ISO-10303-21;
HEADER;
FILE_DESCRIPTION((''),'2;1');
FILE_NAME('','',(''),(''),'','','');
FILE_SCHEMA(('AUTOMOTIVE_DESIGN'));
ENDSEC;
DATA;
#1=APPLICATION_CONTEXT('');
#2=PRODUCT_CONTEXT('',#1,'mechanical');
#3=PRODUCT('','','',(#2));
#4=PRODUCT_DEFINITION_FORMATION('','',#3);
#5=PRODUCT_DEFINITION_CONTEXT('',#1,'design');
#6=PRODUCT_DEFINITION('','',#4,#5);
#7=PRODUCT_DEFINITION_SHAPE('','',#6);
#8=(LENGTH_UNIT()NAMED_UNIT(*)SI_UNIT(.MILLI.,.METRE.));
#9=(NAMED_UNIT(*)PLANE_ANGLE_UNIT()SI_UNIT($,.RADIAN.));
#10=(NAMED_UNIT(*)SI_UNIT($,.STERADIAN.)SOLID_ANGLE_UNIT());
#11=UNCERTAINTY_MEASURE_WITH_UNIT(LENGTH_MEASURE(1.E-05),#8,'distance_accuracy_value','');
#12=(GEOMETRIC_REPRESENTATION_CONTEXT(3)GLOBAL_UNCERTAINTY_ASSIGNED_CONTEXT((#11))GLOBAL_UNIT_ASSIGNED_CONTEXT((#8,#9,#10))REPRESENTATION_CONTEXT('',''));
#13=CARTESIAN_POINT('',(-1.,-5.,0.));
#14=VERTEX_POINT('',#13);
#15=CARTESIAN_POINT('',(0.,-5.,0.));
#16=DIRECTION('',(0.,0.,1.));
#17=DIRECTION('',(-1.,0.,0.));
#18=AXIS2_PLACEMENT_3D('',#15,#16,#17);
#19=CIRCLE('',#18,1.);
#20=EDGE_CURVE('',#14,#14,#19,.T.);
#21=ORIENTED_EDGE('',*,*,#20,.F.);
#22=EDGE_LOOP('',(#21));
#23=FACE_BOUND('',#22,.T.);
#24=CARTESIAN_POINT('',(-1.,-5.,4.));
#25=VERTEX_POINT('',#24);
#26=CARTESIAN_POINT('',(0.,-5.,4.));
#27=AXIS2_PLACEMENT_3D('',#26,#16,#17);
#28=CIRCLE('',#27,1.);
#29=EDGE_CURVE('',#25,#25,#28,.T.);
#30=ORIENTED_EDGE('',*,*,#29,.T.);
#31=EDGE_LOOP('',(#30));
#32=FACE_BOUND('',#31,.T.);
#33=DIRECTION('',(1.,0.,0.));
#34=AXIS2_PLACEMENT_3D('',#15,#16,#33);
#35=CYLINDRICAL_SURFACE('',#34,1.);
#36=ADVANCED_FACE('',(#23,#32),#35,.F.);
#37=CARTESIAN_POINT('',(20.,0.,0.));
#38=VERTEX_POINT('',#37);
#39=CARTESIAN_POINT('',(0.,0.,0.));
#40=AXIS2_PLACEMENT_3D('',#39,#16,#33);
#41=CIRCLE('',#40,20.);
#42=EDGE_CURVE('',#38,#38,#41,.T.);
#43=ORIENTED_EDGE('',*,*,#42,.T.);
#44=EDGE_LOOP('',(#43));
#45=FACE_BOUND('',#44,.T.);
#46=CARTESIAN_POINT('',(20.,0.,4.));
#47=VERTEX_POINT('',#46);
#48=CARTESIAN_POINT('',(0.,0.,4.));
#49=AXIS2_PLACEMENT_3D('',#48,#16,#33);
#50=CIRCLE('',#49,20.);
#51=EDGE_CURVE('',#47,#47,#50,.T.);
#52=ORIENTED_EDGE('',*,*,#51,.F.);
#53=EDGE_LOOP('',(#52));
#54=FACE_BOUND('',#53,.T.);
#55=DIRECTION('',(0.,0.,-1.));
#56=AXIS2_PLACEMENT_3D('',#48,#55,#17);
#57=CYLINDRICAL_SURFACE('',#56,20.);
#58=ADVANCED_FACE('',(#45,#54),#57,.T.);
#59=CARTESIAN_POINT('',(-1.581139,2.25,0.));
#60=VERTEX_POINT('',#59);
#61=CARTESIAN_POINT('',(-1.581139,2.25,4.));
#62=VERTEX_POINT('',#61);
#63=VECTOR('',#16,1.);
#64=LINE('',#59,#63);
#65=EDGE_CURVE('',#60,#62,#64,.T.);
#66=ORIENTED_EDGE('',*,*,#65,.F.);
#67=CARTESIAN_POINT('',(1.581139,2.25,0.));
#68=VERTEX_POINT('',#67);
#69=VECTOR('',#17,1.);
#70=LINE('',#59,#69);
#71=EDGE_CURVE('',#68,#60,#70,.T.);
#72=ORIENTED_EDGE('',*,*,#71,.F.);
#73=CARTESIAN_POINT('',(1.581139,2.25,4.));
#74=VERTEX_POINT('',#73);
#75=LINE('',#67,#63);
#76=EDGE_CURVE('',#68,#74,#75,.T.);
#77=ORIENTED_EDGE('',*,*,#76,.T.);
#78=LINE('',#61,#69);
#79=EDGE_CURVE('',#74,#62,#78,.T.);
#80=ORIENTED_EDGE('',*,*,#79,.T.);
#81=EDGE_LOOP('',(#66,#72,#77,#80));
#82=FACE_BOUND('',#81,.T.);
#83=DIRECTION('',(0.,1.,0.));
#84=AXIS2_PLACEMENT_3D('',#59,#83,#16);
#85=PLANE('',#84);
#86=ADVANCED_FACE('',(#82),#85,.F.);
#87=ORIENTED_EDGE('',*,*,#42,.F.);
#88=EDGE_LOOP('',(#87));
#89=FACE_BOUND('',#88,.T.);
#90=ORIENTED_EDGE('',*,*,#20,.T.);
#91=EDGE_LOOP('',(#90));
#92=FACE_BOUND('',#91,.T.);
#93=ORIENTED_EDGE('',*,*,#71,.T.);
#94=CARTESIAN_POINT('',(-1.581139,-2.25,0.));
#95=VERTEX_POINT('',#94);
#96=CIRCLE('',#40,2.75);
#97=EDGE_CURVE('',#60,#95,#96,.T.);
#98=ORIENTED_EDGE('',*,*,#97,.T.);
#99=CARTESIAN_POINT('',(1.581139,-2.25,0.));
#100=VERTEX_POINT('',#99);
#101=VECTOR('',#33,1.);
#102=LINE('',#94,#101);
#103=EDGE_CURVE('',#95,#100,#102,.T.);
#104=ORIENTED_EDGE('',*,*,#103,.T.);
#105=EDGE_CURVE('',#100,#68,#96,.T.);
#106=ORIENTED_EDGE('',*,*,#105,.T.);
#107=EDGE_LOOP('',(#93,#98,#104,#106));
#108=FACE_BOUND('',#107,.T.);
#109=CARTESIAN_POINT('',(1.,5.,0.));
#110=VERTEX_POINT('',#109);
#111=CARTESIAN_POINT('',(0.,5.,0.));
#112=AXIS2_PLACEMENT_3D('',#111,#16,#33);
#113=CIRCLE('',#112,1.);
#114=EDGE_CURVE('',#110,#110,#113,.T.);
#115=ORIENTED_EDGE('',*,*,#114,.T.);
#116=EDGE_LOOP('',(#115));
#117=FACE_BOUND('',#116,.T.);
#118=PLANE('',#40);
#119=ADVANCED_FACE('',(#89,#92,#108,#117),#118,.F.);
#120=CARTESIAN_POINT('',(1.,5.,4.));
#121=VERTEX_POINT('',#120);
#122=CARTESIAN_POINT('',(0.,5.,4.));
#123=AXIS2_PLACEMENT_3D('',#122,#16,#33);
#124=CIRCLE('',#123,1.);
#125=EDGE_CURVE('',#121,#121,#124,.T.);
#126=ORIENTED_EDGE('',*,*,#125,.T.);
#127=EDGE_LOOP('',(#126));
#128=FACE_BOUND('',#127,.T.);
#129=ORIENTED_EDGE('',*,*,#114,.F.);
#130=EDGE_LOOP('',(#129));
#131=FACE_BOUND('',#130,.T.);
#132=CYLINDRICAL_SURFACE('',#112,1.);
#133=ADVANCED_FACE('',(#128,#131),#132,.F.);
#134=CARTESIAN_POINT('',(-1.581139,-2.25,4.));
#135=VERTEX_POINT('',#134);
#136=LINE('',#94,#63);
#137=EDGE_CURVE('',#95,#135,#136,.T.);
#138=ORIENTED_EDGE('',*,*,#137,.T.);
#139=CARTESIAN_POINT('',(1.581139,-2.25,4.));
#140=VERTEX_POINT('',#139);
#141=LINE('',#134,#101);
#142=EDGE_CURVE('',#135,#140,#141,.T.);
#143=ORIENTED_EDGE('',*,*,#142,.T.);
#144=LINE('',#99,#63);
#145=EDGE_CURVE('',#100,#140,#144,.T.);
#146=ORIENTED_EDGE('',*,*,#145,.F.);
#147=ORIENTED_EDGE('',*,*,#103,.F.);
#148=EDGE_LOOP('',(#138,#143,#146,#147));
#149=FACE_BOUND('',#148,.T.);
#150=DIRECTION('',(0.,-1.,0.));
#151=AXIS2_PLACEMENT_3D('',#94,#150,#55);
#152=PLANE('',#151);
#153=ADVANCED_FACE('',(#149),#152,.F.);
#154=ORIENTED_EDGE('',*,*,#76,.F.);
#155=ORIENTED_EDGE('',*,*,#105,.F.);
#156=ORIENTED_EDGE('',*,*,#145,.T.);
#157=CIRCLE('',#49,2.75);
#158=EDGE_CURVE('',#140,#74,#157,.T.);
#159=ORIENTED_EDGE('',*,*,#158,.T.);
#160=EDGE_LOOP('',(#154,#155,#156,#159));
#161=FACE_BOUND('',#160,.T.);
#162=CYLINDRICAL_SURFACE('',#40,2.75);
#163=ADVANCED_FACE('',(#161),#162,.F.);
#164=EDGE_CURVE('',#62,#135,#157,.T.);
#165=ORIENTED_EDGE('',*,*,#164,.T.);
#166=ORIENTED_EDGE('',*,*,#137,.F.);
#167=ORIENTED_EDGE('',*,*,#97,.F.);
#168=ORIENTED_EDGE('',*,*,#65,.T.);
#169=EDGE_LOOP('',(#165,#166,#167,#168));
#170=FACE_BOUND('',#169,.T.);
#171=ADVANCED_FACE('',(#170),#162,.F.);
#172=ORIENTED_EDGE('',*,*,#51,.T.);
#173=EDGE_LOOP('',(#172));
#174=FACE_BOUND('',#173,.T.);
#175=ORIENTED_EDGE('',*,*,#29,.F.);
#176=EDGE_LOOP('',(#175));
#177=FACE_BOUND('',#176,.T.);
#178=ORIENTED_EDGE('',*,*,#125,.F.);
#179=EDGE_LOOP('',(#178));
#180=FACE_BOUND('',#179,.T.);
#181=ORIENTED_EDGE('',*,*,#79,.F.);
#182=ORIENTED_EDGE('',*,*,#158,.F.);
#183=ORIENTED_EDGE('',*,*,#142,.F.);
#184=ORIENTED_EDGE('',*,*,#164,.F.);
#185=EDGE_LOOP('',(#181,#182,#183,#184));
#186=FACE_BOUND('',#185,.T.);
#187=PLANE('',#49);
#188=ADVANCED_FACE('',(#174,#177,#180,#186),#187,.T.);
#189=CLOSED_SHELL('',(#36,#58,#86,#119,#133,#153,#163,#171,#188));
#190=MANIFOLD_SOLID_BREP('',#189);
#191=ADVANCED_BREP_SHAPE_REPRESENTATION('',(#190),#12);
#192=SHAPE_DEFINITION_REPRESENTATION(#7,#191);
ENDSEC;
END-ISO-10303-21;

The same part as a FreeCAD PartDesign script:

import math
import FreeCAD as App
import Part
import Sketcher
from FreeCAD import Vector

doc = App.newDocument("Part")
body = doc.addObject("PartDesign::Body", "Body")

# Sketch on XY plane
sketch1 = doc.addObject("Sketcher::SketchObject", "Sketch")
body.addObject(sketch1)
sketch1.AttachmentSupport = (doc.XY_Plane, [""])
sketch1.MapMode = "FlatFace"
sketch1.addGeometry(Part.Circle(Vector(0, 0, 0), Vector(0, 0, 1), 20), False)
sketch1.addConstraint(Sketcher.Constraint("Coincident", 0, 3, -1, 1))
sketch1.addConstraint(Sketcher.Constraint("Diameter", 0, 40.0))
pad1 = doc.addObject("PartDesign::Pad", "Pad")
body.addObject(pad1)
pad1.Profile = sketch1
pad1.Length = 4

# Sketch on XY plane
sketch2 = doc.addObject("Sketcher::SketchObject", "Sketch001")
body.addObject(sketch2)
sketch2.AttachmentSupport = (doc.XY_Plane, [""])
sketch2.MapMode = "FlatFace"
sketch2.AttachmentOffset = App.Placement(Vector(0, 0, 4), App.Rotation())
sketch2.addGeometry(Part.Circle(Vector(0, 5, 0), Vector(0, 0, 1), 1), False)
sketch2.addGeometry(Part.Circle(Vector(0, -5, 0), Vector(0, 0, 1), 1), False)
sketch2.addGeometry(Part.LineSegment(Vector(1.6, 2.2, 0), Vector(-1.6, 2.2, 0)), False)
sketch2.addGeometry(Part.ArcOfCircle(Part.Circle(Vector(0, 0, 0), Vector(0, 0, 1), 2.8), math.radians(125), math.radians(235)), False)
sketch2.addGeometry(Part.LineSegment(Vector(-1.6, -2.2, 0), Vector(1.6, -2.2, 0)), False)
sketch2.addGeometry(Part.ArcOfCircle(Part.Circle(Vector(0, 0, 0), Vector(0, 0, 1), 2.8), math.radians(-55), math.radians(55)), False)
sketch2.addConstraint(Sketcher.Constraint("Coincident", 2, 2, 3, 1))
sketch2.addConstraint(Sketcher.Constraint("Coincident", 3, 2, 4, 1))
sketch2.addConstraint(Sketcher.Constraint("Coincident", 4, 2, 5, 1))
sketch2.addConstraint(Sketcher.Constraint("Coincident", 5, 2, 2, 1))
sketch2.addConstraint(Sketcher.Constraint("Horizontal", 2))
sketch2.addConstraint(Sketcher.Constraint("Horizontal", 4))
sketch2.addConstraint(Sketcher.Constraint("Coincident", 3, 3, -1, 1))
sketch2.addConstraint(Sketcher.Constraint("Coincident", 5, 3, -1, 1))
sketch2.addConstraint(Sketcher.Constraint("Equal", 0, 1))
sketch2.addConstraint(Sketcher.Constraint("Equal", 3, 5))
sketch2.addConstraint(Sketcher.Constraint("Symmetric", 0, 3, 1, 3, -1, 1))
sketch2.addConstraint(Sketcher.Constraint("PointOnObject", 0, 3, -2))
sketch2.addConstraint(Sketcher.Constraint("Vertical", 2, 2, 3, 2))
sketch2.addConstraint(Sketcher.Constraint("Diameter", 0, 2.0))
sketch2.addConstraint(Sketcher.Constraint("Radius", 3, 2.75))
sketch2.addConstraint(Sketcher.Constraint("DistanceY", -1, 1, 0, 3, 5.0))
sketch2.addConstraint(Sketcher.Constraint("DistanceY", 3, 2, 2, 2, 4.5))
pocket1 = doc.addObject("PartDesign::Pocket", "Pocket")
body.addObject(pocket1)
pocket1.Profile = sketch2
pocket1.Length = 4

doc.recompute()
